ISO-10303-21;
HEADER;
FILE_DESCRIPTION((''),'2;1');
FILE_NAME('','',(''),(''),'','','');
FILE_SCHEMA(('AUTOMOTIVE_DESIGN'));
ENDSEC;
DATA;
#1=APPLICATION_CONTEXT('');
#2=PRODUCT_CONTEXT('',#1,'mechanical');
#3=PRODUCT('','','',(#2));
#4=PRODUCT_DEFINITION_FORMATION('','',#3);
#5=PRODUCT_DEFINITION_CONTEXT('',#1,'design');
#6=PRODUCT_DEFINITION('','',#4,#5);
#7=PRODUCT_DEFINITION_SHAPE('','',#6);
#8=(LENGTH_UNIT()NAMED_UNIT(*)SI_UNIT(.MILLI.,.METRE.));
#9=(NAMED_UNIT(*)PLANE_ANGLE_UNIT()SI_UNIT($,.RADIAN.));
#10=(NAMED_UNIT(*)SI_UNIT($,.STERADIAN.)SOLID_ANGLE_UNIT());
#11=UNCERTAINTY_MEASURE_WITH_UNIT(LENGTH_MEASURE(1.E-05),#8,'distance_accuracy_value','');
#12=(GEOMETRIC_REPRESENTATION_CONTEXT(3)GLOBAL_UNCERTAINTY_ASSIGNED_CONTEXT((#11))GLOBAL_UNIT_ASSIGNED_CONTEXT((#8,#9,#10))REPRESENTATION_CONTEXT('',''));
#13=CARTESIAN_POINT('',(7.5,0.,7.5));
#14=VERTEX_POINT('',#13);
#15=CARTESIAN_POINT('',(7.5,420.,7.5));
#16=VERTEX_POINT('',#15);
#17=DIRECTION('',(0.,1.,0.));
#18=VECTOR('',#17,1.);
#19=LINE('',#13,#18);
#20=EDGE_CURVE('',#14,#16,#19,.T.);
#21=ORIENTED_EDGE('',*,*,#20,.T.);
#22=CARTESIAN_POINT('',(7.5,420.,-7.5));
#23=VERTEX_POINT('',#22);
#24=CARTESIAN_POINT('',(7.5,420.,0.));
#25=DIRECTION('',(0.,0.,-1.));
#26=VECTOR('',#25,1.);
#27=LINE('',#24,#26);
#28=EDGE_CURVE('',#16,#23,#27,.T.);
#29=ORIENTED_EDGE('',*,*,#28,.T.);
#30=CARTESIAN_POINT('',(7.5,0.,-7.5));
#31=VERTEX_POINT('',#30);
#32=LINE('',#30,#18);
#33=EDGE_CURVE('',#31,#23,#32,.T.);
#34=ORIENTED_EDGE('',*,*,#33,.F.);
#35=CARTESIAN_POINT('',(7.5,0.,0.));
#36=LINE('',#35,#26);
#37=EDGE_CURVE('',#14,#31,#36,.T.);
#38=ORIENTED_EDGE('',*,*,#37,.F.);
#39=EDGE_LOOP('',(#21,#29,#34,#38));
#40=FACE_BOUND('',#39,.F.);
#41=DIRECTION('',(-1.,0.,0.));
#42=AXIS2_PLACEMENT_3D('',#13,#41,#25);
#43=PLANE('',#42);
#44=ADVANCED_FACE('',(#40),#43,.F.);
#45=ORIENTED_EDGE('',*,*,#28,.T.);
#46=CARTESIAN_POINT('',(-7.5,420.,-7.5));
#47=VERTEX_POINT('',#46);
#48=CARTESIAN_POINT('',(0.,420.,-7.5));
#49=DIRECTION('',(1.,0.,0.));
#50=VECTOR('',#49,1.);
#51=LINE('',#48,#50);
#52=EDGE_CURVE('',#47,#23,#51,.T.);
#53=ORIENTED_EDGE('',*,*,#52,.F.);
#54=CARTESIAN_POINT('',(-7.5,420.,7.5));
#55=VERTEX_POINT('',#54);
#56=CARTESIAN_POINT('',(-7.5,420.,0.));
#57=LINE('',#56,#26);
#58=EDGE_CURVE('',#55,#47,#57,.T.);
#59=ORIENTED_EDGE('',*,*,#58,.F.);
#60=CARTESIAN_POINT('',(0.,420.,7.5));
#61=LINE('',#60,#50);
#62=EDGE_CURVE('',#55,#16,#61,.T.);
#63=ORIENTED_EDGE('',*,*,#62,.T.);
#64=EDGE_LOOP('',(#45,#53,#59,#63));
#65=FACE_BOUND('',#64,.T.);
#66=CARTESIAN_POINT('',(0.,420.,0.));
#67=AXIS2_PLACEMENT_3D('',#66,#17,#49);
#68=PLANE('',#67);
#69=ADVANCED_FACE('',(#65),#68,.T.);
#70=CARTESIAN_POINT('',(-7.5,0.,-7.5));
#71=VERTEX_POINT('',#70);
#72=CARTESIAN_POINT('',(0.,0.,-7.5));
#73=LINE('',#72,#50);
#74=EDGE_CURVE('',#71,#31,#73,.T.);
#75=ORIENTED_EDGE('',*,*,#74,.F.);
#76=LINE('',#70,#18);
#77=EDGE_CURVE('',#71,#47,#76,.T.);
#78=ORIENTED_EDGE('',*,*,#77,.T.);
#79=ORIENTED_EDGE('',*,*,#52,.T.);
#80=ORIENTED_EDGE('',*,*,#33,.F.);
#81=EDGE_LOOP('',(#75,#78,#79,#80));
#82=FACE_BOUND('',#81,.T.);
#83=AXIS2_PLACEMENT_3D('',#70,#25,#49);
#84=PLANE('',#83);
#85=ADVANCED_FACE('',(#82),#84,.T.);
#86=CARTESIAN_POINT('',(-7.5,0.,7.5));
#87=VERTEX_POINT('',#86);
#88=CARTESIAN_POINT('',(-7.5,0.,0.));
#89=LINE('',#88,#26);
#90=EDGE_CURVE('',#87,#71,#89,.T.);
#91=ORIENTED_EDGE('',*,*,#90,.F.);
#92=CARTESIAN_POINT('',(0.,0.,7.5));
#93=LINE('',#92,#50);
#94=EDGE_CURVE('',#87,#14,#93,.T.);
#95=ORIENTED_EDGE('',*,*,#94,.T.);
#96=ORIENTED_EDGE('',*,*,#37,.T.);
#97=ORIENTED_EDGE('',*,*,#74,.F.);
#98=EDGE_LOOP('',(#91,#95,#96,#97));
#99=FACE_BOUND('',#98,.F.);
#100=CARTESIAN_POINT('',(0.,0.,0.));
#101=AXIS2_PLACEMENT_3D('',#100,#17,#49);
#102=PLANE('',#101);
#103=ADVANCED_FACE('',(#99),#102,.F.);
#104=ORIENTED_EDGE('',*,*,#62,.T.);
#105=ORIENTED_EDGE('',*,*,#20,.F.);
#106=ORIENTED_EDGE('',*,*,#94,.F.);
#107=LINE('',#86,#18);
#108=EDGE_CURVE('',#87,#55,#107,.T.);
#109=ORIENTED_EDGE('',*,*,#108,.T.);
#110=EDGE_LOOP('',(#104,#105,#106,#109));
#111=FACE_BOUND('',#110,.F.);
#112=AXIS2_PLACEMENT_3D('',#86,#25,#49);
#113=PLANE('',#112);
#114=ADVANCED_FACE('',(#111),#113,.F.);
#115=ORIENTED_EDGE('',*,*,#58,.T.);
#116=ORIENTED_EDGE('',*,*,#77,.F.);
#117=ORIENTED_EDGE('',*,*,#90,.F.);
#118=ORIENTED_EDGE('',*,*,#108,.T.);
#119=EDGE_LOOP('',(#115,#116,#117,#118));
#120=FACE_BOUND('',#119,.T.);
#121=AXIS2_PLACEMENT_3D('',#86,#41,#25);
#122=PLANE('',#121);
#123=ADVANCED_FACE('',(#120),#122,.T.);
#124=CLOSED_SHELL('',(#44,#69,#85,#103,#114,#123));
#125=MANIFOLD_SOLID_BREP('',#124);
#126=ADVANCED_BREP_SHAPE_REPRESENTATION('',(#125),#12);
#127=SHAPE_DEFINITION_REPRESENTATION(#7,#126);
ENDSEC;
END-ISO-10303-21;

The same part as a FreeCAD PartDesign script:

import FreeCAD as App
import Part
import Sketcher

doc = App.newDocument("Part")
body = doc.addObject("PartDesign::Body", "Body")

# Sketch on XZ plane
sketch1 = body.newObject("Sketcher::SketchObject", "Sketch")
sketch1.AttachmentSupport = (doc.getObject("XZ_Plane"), [""])
sketch1.MapMode = "FlatFace"
sketch1.addGeometry([
    Part.LineSegment(App.Vector(-8, -8, 0), App.Vector(-8, 8, 0)),
    Part.LineSegment(App.Vector(-8, 8, 0), App.Vector(8, 8, 0)),
    Part.LineSegment(App.Vector(8, 8, 0), App.Vector(8, -8, 0)),
    Part.LineSegment(App.Vector(8, -8, 0), App.Vector(-8, -8, 0)),
], False)
sketch1.addConstraint([
    Sketcher.Constraint("Coincident", 0, 2, 1, 1),
    Sketcher.Constraint("Coincident", 1, 2, 2, 1),
    Sketcher.Constraint("Coincident", 2, 2, 3, 1),
    Sketcher.Constraint("Coincident", 3, 2, 0, 1),
    Sketcher.Constraint("Vertical", 0),
    Sketcher.Constraint("Horizontal", 1),
    Sketcher.Constraint("Vertical", 2),
    Sketcher.Constraint("Horizontal", 3),
    Sketcher.Constraint("Symmetric", 0, 2, 2, 2, -1, 1),
    Sketcher.Constraint("Equal", 3, 0),
    Sketcher.Constraint("DistanceX", 1, 1, 1, 2, 15.0),
])
pad1 = body.newObject("PartDesign::Pad", "Pad")
pad1.Profile = sketch1
pad1.Length = 420
pad1.Reversed = True

doc.recompute()
